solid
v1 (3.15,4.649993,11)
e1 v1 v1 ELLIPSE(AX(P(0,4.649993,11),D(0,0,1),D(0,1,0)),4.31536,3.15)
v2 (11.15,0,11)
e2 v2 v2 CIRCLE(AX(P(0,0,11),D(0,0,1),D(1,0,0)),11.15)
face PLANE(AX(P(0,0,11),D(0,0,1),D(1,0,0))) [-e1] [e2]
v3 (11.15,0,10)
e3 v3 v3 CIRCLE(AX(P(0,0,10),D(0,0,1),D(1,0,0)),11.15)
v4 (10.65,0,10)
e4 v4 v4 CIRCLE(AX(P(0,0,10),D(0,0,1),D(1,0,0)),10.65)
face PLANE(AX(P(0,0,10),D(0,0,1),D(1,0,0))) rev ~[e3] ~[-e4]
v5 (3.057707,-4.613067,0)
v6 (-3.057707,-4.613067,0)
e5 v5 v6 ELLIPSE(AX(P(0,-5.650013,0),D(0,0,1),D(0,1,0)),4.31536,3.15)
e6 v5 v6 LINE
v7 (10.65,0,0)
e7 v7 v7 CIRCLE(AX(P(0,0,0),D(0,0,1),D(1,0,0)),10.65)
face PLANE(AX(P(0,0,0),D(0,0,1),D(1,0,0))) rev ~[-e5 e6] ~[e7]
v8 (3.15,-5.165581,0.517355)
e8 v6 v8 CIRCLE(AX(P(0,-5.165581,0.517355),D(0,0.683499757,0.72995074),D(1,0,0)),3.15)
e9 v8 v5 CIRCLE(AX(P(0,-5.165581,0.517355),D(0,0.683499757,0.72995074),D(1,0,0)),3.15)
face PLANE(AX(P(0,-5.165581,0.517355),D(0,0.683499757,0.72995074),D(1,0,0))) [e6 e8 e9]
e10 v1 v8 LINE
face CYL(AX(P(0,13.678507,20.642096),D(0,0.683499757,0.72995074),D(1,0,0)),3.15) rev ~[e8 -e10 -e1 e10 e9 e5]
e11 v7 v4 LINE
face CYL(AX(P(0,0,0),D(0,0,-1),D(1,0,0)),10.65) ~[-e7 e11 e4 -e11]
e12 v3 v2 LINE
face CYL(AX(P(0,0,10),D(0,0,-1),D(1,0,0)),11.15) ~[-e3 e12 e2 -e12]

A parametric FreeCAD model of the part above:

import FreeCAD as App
import Part
import Sketcher

doc = App.newDocument("Part")
body = doc.addObject("PartDesign::Body", "Body")

sketch1 = body.newObject("Sketcher::SketchObject", "Sketch")
sketch1.AttachmentSupport = (doc.getObject("XY_Plane"), [""])
sketch1.MapMode = "FlatFace"
sketch1.addGeometry(Part.Circle(App.Vector(0, 0, 0), App.Vector(0, 0, 1), 11), False)
sketch1.addConstraint([
    Sketcher.Constraint("Coincident", 0, 3, -1, 1),
    Sketcher.Constraint("Diameter", 0, 21.3),
])
pad1 = body.newObject("PartDesign::Pad", "Pad")
pad1.Profile = sketch1
pad1.Length = 10

sketch2 = body.newObject("Sketcher::SketchObject", "Sketch001")
sketch2.AttachmentSupport = (doc.getObject("XY_Plane"), [""])
sketch2.MapMode = "FlatFace"
sketch2.AttachmentOffset = App.Placement(App.Vector(0, 0, 10), App.Rotation())
sketch2.addGeometry(Part.Circle(App.Vector(0, 0, 0), App.Vector(0, 0, 1), 11), False)
sketch2.addConstraint([
    Sketcher.Constraint("Coincident", 0, 3, -1, 1),
    Sketcher.Constraint("Diameter", 0, 22.3),
])
pad2 = body.newObject("PartDesign::Pad", "Pad001")
pad2.Profile = sketch2
pad2.Length = 1

sketch3 = body.newObject("Sketcher::SketchObject", "Sketch002")
sketch3.Placement = App.Placement(App.Vector(0, 16.688987, 17.823191), App.Rotation(App.Vector(1, 0, 0), App.Vector(0, 0.72995074, -0.683499757), App.Vector(0, 0.683499757, 0.72995074), "ZXY"))
sketch3.addGeometry(Part.Circle(App.Vector(0, -4.1, 0), App.Vector(0, 0, 1), 3.1), False)
sketch3.addConstraint([
    Sketcher.Constraint("PointOnObject", 0, 3, -2),
    Sketcher.Constraint("Diameter", 0, 6.3),
    Sketcher.Constraint("DistanceY", 0, 3, -1, 1, 4.124223),
])
pocket1 = body.newObject("PartDesign::Pocket", "Pocket")
pocket1.Profile = sketch3
pocket1.Length = 27.57

doc.recompute()
